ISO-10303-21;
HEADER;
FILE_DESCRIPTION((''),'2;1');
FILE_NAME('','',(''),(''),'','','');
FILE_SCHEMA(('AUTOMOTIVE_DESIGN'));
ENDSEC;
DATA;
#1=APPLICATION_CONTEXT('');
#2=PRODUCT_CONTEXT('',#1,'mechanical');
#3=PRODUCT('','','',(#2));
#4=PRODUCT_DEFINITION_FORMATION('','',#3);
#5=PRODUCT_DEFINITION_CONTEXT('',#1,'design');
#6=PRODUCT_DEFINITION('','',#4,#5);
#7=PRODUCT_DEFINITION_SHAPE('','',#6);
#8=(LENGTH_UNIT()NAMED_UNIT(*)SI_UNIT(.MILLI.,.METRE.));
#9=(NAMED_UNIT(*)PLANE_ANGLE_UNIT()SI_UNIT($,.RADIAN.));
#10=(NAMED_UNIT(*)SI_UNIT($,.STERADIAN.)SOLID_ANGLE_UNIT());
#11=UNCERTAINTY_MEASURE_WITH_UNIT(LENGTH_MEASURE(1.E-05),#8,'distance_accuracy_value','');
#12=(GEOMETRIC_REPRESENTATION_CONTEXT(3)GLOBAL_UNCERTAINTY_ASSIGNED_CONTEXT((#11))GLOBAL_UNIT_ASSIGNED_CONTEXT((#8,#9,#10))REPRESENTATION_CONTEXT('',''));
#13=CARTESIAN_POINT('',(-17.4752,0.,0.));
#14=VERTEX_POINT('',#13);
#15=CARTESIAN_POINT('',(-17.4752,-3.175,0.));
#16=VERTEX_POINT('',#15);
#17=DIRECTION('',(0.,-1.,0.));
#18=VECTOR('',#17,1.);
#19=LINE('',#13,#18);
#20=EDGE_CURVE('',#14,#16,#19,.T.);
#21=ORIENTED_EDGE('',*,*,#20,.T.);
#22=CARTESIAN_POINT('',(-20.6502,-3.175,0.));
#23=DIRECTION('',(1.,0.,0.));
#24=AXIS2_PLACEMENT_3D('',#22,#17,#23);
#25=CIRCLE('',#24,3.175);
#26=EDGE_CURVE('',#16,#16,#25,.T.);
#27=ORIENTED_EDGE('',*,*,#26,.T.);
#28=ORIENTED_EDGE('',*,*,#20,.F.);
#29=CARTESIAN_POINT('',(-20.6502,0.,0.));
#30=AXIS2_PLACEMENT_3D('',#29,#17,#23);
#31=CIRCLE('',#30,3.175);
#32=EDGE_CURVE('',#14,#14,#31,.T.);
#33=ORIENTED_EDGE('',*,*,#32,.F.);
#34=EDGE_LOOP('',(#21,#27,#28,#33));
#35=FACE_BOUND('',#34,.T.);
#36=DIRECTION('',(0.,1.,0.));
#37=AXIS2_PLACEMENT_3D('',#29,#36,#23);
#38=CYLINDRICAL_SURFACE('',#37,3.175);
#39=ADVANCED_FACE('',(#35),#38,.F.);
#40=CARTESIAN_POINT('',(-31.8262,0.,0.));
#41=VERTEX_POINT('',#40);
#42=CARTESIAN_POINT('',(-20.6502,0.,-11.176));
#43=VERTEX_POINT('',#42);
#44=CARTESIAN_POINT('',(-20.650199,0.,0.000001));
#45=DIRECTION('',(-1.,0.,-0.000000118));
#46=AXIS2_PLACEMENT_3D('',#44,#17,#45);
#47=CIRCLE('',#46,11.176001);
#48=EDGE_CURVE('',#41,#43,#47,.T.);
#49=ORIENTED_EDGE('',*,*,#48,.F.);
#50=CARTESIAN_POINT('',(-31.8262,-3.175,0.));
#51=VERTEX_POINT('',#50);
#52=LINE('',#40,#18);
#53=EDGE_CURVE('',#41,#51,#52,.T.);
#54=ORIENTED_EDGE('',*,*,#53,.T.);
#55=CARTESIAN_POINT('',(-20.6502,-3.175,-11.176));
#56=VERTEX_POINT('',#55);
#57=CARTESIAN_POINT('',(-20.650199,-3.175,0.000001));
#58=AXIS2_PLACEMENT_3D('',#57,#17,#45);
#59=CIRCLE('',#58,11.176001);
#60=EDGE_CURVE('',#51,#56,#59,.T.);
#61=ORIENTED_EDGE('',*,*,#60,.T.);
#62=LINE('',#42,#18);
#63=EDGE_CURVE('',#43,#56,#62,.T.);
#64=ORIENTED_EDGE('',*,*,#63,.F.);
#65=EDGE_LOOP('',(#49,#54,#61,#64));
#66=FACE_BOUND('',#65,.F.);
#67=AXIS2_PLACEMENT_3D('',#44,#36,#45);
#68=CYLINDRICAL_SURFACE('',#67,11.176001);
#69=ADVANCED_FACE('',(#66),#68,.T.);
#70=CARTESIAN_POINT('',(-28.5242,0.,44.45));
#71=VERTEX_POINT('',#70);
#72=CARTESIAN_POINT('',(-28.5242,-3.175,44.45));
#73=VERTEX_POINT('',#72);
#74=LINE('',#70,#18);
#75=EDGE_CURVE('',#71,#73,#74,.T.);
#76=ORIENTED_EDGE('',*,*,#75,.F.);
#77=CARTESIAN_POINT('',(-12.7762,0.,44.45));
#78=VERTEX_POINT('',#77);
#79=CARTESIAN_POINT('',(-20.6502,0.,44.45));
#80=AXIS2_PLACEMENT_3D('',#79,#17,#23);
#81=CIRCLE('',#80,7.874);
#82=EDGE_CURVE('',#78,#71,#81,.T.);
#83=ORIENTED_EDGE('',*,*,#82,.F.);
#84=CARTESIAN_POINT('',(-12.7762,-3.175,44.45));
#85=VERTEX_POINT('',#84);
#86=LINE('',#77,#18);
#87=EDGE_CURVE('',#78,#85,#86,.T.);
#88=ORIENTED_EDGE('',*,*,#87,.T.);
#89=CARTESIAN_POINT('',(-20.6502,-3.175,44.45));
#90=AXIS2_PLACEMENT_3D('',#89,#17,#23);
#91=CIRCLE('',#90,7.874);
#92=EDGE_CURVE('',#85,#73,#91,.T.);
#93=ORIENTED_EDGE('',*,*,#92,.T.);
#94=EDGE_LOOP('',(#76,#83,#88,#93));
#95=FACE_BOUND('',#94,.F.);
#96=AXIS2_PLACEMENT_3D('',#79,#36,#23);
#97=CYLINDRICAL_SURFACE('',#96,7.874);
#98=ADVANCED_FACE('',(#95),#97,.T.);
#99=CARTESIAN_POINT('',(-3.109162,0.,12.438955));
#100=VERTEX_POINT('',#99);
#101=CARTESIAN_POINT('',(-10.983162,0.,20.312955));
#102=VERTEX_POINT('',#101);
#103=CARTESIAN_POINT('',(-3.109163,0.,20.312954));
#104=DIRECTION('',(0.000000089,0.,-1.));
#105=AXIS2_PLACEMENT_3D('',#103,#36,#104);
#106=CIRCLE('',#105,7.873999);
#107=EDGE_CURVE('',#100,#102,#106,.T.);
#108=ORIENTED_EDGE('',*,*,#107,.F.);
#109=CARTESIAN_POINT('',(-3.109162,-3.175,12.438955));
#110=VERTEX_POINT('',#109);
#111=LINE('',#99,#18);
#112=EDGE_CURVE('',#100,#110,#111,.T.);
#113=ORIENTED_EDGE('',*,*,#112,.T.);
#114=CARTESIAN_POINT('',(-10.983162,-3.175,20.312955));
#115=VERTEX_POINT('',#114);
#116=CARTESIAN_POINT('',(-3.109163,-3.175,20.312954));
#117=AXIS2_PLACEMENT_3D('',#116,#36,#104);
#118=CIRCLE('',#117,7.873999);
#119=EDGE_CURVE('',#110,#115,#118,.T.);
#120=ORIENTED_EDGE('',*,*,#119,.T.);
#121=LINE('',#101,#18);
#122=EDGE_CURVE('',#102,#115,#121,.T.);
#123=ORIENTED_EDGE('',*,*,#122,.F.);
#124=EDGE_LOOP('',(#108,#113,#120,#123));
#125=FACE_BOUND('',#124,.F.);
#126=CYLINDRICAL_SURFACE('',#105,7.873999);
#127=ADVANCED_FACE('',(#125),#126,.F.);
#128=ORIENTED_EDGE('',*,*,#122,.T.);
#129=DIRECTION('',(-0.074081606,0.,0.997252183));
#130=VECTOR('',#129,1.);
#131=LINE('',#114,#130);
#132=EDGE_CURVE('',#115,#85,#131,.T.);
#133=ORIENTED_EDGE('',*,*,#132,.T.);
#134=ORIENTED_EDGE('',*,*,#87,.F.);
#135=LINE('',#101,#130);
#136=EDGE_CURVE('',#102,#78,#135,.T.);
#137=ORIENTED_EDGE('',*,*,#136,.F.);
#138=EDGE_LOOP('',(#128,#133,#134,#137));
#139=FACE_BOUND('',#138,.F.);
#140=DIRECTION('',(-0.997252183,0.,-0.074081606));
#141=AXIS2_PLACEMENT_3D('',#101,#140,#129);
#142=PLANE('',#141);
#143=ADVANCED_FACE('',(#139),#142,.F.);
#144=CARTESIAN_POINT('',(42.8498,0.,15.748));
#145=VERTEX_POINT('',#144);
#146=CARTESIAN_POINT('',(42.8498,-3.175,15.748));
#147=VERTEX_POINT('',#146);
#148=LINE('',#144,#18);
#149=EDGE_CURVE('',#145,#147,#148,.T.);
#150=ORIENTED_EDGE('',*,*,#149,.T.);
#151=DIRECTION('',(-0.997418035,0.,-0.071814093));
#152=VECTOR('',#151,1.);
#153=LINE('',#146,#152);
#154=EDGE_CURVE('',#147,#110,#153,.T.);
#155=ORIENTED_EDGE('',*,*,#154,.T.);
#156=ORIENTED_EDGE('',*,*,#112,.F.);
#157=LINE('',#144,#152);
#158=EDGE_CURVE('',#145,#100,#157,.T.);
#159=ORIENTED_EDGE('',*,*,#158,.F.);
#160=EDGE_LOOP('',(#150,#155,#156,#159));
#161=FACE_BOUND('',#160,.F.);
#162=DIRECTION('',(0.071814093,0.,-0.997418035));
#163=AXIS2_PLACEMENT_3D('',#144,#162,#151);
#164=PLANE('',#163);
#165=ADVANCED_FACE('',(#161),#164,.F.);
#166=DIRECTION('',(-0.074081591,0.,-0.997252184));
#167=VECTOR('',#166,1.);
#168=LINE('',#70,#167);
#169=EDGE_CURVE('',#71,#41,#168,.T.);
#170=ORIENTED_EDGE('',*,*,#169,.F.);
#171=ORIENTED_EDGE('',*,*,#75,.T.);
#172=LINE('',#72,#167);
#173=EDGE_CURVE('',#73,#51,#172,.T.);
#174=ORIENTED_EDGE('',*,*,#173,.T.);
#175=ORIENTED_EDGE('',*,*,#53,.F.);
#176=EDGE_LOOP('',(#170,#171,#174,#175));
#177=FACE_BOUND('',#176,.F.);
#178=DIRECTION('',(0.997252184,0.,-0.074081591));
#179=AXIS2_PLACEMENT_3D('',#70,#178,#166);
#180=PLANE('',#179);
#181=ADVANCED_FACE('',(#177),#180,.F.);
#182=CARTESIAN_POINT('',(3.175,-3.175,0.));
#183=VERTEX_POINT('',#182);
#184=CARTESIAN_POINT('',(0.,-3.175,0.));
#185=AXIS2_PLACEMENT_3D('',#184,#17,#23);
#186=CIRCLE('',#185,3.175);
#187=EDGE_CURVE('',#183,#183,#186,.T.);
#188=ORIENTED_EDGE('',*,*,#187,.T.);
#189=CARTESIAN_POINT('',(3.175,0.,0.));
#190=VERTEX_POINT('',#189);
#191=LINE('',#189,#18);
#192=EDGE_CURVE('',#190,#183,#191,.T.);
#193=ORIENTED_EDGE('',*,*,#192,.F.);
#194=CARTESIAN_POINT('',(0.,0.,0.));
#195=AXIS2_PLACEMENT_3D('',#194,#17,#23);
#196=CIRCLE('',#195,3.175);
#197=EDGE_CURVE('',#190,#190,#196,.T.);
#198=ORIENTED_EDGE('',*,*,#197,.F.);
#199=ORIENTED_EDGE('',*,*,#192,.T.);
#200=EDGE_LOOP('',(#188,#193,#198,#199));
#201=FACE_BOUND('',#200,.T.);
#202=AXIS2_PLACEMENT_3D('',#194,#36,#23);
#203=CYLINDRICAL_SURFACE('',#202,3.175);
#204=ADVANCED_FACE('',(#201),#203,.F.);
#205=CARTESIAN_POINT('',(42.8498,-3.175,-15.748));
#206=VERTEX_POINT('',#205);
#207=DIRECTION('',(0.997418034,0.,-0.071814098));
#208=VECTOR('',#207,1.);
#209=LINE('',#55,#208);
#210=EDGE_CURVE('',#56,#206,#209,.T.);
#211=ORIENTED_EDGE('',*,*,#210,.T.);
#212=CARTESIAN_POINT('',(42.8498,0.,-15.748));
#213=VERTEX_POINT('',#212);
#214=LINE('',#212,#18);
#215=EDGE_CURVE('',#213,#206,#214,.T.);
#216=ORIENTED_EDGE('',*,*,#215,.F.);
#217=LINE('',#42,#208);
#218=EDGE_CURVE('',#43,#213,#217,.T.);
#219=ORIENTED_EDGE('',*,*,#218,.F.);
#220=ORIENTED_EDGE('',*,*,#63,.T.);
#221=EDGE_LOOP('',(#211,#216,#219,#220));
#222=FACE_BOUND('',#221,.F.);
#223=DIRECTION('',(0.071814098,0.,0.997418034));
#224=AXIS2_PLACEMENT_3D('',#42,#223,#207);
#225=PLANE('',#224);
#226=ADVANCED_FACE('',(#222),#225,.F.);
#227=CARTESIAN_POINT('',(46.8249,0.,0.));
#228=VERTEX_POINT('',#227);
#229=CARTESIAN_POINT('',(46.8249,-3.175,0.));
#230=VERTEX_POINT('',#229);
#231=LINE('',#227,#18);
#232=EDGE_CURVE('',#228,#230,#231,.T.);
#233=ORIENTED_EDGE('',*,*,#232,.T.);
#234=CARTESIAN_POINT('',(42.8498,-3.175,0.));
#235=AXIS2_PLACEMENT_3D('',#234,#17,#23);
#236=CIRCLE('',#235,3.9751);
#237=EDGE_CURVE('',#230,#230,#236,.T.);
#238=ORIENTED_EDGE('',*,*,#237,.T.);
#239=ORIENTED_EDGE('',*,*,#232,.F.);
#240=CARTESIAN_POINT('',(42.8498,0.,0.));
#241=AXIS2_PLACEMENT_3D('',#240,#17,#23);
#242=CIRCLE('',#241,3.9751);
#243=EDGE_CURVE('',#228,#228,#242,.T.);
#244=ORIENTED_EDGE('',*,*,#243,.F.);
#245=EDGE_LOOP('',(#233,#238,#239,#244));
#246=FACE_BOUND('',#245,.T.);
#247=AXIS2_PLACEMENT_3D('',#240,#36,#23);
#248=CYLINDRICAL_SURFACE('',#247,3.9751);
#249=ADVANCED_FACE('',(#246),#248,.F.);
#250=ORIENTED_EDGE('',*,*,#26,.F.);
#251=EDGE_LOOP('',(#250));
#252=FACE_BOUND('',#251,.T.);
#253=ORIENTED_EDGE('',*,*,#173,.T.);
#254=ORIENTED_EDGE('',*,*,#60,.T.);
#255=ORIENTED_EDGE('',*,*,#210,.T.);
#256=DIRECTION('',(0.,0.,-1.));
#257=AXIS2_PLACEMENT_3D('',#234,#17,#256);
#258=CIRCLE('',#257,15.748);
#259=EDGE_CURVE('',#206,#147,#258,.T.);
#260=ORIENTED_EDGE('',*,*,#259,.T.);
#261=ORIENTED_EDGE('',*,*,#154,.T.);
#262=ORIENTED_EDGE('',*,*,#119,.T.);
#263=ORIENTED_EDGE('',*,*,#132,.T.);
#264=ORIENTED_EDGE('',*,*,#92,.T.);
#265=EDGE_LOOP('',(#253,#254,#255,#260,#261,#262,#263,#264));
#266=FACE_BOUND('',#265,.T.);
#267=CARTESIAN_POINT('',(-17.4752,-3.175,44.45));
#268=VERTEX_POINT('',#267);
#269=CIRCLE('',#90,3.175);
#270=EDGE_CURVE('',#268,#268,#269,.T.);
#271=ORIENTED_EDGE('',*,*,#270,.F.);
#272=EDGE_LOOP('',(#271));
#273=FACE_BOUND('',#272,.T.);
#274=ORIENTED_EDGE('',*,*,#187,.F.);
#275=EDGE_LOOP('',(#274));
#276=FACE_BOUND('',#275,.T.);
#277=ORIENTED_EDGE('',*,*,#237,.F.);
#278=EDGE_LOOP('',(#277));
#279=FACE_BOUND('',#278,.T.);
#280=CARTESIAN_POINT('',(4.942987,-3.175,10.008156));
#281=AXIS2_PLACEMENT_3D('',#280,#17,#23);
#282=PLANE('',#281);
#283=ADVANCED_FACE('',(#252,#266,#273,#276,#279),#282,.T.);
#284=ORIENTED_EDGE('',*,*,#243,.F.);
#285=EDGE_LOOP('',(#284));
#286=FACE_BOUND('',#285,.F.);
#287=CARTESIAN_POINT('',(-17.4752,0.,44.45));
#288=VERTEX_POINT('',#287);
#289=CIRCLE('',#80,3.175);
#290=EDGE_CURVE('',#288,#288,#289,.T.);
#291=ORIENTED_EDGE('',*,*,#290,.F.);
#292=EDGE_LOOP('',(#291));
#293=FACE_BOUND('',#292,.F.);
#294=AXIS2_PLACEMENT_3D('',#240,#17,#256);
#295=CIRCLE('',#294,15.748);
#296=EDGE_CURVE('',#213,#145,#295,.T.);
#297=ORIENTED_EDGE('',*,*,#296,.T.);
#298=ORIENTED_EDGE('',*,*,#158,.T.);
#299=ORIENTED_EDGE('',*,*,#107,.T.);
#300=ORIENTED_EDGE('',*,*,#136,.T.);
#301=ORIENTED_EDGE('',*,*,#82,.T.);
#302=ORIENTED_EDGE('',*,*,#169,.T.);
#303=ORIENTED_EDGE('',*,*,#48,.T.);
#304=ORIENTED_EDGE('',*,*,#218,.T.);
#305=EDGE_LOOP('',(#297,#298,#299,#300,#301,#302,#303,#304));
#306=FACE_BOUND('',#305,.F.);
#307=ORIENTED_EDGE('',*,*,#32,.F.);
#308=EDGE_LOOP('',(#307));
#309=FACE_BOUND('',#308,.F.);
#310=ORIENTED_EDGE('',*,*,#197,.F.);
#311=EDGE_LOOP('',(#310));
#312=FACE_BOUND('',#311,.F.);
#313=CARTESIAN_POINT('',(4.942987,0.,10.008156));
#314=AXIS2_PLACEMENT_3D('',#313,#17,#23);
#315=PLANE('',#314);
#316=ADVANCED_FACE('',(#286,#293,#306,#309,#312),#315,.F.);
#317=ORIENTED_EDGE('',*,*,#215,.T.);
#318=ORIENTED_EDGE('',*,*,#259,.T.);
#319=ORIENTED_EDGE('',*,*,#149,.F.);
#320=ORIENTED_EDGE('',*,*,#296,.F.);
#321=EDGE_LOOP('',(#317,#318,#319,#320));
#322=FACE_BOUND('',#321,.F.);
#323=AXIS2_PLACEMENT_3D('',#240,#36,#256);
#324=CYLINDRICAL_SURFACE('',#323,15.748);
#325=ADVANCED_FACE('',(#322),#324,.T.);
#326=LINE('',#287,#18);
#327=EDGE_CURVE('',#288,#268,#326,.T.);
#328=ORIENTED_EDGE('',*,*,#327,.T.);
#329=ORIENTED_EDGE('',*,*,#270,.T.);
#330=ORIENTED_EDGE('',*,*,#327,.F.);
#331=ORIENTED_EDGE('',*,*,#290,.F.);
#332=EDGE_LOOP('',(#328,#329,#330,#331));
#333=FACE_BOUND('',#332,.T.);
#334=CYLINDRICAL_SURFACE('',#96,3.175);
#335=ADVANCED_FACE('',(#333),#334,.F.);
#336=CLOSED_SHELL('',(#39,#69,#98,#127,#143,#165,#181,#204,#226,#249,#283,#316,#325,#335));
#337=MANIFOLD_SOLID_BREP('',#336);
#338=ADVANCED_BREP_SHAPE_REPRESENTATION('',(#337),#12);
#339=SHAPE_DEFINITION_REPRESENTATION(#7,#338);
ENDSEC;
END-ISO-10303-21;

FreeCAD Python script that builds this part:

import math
import FreeCAD as App
import Part
import Sketcher

V = App.Vector
Q = App.Units.Quantity

doc = App.newDocument("Part")
params = doc.addObject("Spreadsheet::Sheet", "Params")
for row, (alias, value) in enumerate([
    ("sketch1_diameter", "0.25 in"),
    ("sketch1_radius", "0.31 in"),
    ("sketch1_radius2", "0.4400001 in"),
    ("sketch1_radius3", "0.62 in"),
    ("sketch1_diameter2", "0.313 in"),
    ("pad1_length", "0.125 in"),
], start=1):
    params.set(f"A{row}", alias)
    params.set(f"B{row}", "=" + value)
    params.setAlias(f"B{row}", alias)

body = doc.addObject("PartDesign::Body", "Body")

# Sketch on XZ plane
sketch1 = body.newObject("Sketcher::SketchObject", "Sketch")
sketch1.AttachmentSupport = (doc.getObject("XZ_Plane"), [""])
sketch1.MapMode = "FlatFace"
sketch1.addGeometry(Part.ArcOfCircle(Part.Circle(V(-20.7, 44.5, 0), V(0, 0, 1), 7.9), math.radians(0), math.radians(180)), False)
sketch1.addGeometry(Part.LineSegment(V(-28.5, 44.5, 0), V(-31.8, 0, 0)), False)
sketch1.addGeometry(Part.ArcOfCircle(Part.Circle(V(-20.7, 0, 0), V(0, 0, 1), 11.2), math.radians(-180), math.radians(-90)), False)
sketch1.addGeometry(Part.LineSegment(V(-20.7, -11.2, 0), V(42.8, -15.7, 0)), False)
sketch1.addGeometry(Part.ArcOfCircle(Part.Circle(V(42.8, 0, 0), V(0, 0, 1), 15.7), math.radians(-90), math.radians(90)), False)
sketch1.addGeometry(Part.LineSegment(V(42.8, 15.7, 0), V(-3.1, 12.4, 0)), False)
sketch1.addGeometry(Part.ArcOfCircle(Part.Circle(V(-3.1, 20.3, 0), V(0, 0, 1), 7.9), math.radians(180), math.radians(270)), False)
sketch1.addGeometry(Part.LineSegment(V(-11, 20.3, 0), V(-12.8, 44.5, 0)), False)
sketch1.addGeometry(Part.Circle(V(-20.7, 0, 0), V(0, 0, 1), 3.2), False)
sketch1.addGeometry(Part.Circle(V(0, 0, 0), V(0, 0, 1), 3.2), False)
sketch1.addGeometry(Part.Circle(V(42.8, 0, 0), V(0, 0, 1), 4), False)
sketch1.addGeometry(Part.Circle(V(-20.7, 44.5, 0), V(0, 0, 1), 3.2), False)
sketch1.addConstraint(Sketcher.Constraint("Coincident", 0, 2, 1, 1))
sketch1.addConstraint(Sketcher.Constraint("Coincident", 1, 2, 2, 1))
sketch1.addConstraint(Sketcher.Constraint("Coincident", 2, 2, 3, 1))
sketch1.addConstraint(Sketcher.Constraint("Coincident", 3, 2, 4, 1))
sketch1.addConstraint(Sketcher.Constraint("Coincident", 4, 2, 5, 1))
sketch1.addConstraint(Sketcher.Constraint("Coincident", 5, 2, 6, 2))
sketch1.addConstraint(Sketcher.Constraint("Coincident", 6, 1, 7, 1))
sketch1.addConstraint(Sketcher.Constraint("Coincident", 7, 2, 0, 1))
sketch1.addConstraint(Sketcher.Constraint("Coincident", 9, 3, -1, 1))
sketch1.addConstraint(Sketcher.Constraint("Coincident", 8, 3, 2, 3))
sketch1.addConstraint(Sketcher.Constraint("Coincident", 10, 3, 4, 3))
sketch1.addConstraint(Sketcher.Constraint("Coincident", 11, 3, 0, 3))
sketch1.addConstraint(Sketcher.Constraint("Equal", 0, 6))
sketch1.addConstraint(Sketcher.Constraint("Equal", 8, 9))
sketch1.addConstraint(Sketcher.Constraint("Equal", 9, 11))
sketch1.addConstraint(Sketcher.Constraint("Symmetric", 3, 2, 4, 2, -1))
sketch1.addConstraint(Sketcher.Constraint("PointOnObject", 2, 3, -1))
sketch1.addConstraint(Sketcher.Constraint("PointOnObject", 1, 2, -1))
sketch1.addConstraint(Sketcher.Constraint("Horizontal", 11, 3, 0, 2))
sketch1.addConstraint(Sketcher.Constraint("Horizontal", 0, 2, 7, 2))
sketch1.addConstraint(Sketcher.Constraint("Vertical", 0, 3, 2, 3))
sketch1.addConstraint(Sketcher.Constraint("Vertical", 11, 3, 2, 2))
sketch1.addConstraint(Sketcher.Constraint("Vertical", 10, 3, 3, 2))
sketch1.addConstraint(Sketcher.Constraint("Vertical", 6, 3, 5, 2))
sketch1.addConstraint(Sketcher.Constraint("Diameter", 8, Q("0.25 in")))
sketch1.addConstraint(Sketcher.Constraint("Radius", 0, Q("0.31 in")))
sketch1.addConstraint(Sketcher.Constraint("Radius", 2, Q("0.4400001 in")))
sketch1.addConstraint(Sketcher.Constraint("Radius", 4, Q("0.62 in")))
sketch1.addConstraint(Sketcher.Constraint("Diameter", 10, Q("0.313 in")))
sketch1.addConstraint(Sketcher.Constraint("DistanceX", 2, 3, 4, 3, Q("2.4999999 in")))
sketch1.addConstraint(Sketcher.Constraint("DistanceY", -1, 1, 0, 3, Q("1.75 in")))
sketch1.addConstraint(Sketcher.Constraint("DistanceY", 5, 2, 6, 1, Q("0.31 in")))
sketch1.addConstraint(Sketcher.Constraint("DistanceX", 0, 3, -1, 1, Q("0.813 in")))
sketch1.addConstraint(Sketcher.Constraint("Distance", 7, Q("24.203552 mm")))
sketch1.addConstraint(Sketcher.Constraint("DistanceX", 5, 2, -1, 1, Q("3.109162 mm")))
sketch1.setExpression("Constraints[24]", "Params.sketch1_diameter")
sketch1.setExpression("Constraints[25]", "Params.sketch1_radius")
sketch1.setExpression("Constraints[26]", "Params.sketch1_radius2")
sketch1.setExpression("Constraints[27]", "Params.sketch1_radius3")
sketch1.setExpression("Constraints[28]", "Params.sketch1_diameter2")
pad1 = body.newObject("PartDesign::Pad", "Pad")
pad1.Profile = sketch1
pad1.setExpression("Length", "Params.pad1_length")

doc.recompute()
